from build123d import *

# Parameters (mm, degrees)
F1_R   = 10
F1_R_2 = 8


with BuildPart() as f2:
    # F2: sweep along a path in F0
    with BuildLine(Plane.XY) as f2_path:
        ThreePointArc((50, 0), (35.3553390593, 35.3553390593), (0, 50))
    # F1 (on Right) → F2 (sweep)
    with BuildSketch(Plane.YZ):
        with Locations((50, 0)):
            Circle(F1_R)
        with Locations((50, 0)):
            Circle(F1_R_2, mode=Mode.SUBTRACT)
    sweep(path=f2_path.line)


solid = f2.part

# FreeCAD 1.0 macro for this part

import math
import FreeCAD as App
import Part
import Sketcher

V = App.Vector
Q = App.Units.Quantity

doc = App.newDocument("Part")
body = doc.addObject("PartDesign::Body", "Body")

sketch1 = body.newObject("Sketcher::SketchObject", "Sketch")
sketch1.AttachmentSupport = (doc.getObject("YZ_Plane"), [""])
sketch1.MapMode = "FlatFace"
sketch1.addGeometry([
    Part.Circle(V(50, 0, 0), V(0, 0, 1), 10),
    Part.Circle(V(50, 0, 0), V(0, 0, 1), 8),
], False)
sketch1.addConstraint([
    Sketcher.Constraint("Coincident", 1, 3, 0, 3),
    Sketcher.Constraint("PointOnObject", 0, 3, -1),
    Sketcher.Constraint("Diameter", 0, Q("20 mm")),
    Sketcher.Constraint("Diameter", 1, Q("16 mm")),
    Sketcher.Constraint("DistanceX", -1, 1, 0, 3, Q("50 mm")),
])

sketch2 = body.newObject("Sketcher::SketchObject", "Sketch001")
sketch2.AttachmentSupport = (doc.getObject("XY_Plane"), [""])
sketch2.MapMode = "FlatFace"
sketch2.addGeometry(Part.ArcOfCircle(Part.Circle(V(0, 0, 0), V(0, 0, 1), 50), math.radians(0), math.radians(90)), False)
sketch2.addConstraint([
    Sketcher.Constraint("Coincident", 0, 3, -1, 1),
    Sketcher.Constraint("PointOnObject", 0, 1, -1),
    Sketcher.Constraint("PointOnObject", 0, 2, -2),
    Sketcher.Constraint("Radius", 0, Q("50 mm")),
])
doc.recompute()

additivepipe = body.newObject("PartDesign::AdditivePipe", "AdditivePipe")
additivepipe.Profile = sketch1
additivepipe.Spine = (sketch2, ["Edge1"])

doc.recompute()
